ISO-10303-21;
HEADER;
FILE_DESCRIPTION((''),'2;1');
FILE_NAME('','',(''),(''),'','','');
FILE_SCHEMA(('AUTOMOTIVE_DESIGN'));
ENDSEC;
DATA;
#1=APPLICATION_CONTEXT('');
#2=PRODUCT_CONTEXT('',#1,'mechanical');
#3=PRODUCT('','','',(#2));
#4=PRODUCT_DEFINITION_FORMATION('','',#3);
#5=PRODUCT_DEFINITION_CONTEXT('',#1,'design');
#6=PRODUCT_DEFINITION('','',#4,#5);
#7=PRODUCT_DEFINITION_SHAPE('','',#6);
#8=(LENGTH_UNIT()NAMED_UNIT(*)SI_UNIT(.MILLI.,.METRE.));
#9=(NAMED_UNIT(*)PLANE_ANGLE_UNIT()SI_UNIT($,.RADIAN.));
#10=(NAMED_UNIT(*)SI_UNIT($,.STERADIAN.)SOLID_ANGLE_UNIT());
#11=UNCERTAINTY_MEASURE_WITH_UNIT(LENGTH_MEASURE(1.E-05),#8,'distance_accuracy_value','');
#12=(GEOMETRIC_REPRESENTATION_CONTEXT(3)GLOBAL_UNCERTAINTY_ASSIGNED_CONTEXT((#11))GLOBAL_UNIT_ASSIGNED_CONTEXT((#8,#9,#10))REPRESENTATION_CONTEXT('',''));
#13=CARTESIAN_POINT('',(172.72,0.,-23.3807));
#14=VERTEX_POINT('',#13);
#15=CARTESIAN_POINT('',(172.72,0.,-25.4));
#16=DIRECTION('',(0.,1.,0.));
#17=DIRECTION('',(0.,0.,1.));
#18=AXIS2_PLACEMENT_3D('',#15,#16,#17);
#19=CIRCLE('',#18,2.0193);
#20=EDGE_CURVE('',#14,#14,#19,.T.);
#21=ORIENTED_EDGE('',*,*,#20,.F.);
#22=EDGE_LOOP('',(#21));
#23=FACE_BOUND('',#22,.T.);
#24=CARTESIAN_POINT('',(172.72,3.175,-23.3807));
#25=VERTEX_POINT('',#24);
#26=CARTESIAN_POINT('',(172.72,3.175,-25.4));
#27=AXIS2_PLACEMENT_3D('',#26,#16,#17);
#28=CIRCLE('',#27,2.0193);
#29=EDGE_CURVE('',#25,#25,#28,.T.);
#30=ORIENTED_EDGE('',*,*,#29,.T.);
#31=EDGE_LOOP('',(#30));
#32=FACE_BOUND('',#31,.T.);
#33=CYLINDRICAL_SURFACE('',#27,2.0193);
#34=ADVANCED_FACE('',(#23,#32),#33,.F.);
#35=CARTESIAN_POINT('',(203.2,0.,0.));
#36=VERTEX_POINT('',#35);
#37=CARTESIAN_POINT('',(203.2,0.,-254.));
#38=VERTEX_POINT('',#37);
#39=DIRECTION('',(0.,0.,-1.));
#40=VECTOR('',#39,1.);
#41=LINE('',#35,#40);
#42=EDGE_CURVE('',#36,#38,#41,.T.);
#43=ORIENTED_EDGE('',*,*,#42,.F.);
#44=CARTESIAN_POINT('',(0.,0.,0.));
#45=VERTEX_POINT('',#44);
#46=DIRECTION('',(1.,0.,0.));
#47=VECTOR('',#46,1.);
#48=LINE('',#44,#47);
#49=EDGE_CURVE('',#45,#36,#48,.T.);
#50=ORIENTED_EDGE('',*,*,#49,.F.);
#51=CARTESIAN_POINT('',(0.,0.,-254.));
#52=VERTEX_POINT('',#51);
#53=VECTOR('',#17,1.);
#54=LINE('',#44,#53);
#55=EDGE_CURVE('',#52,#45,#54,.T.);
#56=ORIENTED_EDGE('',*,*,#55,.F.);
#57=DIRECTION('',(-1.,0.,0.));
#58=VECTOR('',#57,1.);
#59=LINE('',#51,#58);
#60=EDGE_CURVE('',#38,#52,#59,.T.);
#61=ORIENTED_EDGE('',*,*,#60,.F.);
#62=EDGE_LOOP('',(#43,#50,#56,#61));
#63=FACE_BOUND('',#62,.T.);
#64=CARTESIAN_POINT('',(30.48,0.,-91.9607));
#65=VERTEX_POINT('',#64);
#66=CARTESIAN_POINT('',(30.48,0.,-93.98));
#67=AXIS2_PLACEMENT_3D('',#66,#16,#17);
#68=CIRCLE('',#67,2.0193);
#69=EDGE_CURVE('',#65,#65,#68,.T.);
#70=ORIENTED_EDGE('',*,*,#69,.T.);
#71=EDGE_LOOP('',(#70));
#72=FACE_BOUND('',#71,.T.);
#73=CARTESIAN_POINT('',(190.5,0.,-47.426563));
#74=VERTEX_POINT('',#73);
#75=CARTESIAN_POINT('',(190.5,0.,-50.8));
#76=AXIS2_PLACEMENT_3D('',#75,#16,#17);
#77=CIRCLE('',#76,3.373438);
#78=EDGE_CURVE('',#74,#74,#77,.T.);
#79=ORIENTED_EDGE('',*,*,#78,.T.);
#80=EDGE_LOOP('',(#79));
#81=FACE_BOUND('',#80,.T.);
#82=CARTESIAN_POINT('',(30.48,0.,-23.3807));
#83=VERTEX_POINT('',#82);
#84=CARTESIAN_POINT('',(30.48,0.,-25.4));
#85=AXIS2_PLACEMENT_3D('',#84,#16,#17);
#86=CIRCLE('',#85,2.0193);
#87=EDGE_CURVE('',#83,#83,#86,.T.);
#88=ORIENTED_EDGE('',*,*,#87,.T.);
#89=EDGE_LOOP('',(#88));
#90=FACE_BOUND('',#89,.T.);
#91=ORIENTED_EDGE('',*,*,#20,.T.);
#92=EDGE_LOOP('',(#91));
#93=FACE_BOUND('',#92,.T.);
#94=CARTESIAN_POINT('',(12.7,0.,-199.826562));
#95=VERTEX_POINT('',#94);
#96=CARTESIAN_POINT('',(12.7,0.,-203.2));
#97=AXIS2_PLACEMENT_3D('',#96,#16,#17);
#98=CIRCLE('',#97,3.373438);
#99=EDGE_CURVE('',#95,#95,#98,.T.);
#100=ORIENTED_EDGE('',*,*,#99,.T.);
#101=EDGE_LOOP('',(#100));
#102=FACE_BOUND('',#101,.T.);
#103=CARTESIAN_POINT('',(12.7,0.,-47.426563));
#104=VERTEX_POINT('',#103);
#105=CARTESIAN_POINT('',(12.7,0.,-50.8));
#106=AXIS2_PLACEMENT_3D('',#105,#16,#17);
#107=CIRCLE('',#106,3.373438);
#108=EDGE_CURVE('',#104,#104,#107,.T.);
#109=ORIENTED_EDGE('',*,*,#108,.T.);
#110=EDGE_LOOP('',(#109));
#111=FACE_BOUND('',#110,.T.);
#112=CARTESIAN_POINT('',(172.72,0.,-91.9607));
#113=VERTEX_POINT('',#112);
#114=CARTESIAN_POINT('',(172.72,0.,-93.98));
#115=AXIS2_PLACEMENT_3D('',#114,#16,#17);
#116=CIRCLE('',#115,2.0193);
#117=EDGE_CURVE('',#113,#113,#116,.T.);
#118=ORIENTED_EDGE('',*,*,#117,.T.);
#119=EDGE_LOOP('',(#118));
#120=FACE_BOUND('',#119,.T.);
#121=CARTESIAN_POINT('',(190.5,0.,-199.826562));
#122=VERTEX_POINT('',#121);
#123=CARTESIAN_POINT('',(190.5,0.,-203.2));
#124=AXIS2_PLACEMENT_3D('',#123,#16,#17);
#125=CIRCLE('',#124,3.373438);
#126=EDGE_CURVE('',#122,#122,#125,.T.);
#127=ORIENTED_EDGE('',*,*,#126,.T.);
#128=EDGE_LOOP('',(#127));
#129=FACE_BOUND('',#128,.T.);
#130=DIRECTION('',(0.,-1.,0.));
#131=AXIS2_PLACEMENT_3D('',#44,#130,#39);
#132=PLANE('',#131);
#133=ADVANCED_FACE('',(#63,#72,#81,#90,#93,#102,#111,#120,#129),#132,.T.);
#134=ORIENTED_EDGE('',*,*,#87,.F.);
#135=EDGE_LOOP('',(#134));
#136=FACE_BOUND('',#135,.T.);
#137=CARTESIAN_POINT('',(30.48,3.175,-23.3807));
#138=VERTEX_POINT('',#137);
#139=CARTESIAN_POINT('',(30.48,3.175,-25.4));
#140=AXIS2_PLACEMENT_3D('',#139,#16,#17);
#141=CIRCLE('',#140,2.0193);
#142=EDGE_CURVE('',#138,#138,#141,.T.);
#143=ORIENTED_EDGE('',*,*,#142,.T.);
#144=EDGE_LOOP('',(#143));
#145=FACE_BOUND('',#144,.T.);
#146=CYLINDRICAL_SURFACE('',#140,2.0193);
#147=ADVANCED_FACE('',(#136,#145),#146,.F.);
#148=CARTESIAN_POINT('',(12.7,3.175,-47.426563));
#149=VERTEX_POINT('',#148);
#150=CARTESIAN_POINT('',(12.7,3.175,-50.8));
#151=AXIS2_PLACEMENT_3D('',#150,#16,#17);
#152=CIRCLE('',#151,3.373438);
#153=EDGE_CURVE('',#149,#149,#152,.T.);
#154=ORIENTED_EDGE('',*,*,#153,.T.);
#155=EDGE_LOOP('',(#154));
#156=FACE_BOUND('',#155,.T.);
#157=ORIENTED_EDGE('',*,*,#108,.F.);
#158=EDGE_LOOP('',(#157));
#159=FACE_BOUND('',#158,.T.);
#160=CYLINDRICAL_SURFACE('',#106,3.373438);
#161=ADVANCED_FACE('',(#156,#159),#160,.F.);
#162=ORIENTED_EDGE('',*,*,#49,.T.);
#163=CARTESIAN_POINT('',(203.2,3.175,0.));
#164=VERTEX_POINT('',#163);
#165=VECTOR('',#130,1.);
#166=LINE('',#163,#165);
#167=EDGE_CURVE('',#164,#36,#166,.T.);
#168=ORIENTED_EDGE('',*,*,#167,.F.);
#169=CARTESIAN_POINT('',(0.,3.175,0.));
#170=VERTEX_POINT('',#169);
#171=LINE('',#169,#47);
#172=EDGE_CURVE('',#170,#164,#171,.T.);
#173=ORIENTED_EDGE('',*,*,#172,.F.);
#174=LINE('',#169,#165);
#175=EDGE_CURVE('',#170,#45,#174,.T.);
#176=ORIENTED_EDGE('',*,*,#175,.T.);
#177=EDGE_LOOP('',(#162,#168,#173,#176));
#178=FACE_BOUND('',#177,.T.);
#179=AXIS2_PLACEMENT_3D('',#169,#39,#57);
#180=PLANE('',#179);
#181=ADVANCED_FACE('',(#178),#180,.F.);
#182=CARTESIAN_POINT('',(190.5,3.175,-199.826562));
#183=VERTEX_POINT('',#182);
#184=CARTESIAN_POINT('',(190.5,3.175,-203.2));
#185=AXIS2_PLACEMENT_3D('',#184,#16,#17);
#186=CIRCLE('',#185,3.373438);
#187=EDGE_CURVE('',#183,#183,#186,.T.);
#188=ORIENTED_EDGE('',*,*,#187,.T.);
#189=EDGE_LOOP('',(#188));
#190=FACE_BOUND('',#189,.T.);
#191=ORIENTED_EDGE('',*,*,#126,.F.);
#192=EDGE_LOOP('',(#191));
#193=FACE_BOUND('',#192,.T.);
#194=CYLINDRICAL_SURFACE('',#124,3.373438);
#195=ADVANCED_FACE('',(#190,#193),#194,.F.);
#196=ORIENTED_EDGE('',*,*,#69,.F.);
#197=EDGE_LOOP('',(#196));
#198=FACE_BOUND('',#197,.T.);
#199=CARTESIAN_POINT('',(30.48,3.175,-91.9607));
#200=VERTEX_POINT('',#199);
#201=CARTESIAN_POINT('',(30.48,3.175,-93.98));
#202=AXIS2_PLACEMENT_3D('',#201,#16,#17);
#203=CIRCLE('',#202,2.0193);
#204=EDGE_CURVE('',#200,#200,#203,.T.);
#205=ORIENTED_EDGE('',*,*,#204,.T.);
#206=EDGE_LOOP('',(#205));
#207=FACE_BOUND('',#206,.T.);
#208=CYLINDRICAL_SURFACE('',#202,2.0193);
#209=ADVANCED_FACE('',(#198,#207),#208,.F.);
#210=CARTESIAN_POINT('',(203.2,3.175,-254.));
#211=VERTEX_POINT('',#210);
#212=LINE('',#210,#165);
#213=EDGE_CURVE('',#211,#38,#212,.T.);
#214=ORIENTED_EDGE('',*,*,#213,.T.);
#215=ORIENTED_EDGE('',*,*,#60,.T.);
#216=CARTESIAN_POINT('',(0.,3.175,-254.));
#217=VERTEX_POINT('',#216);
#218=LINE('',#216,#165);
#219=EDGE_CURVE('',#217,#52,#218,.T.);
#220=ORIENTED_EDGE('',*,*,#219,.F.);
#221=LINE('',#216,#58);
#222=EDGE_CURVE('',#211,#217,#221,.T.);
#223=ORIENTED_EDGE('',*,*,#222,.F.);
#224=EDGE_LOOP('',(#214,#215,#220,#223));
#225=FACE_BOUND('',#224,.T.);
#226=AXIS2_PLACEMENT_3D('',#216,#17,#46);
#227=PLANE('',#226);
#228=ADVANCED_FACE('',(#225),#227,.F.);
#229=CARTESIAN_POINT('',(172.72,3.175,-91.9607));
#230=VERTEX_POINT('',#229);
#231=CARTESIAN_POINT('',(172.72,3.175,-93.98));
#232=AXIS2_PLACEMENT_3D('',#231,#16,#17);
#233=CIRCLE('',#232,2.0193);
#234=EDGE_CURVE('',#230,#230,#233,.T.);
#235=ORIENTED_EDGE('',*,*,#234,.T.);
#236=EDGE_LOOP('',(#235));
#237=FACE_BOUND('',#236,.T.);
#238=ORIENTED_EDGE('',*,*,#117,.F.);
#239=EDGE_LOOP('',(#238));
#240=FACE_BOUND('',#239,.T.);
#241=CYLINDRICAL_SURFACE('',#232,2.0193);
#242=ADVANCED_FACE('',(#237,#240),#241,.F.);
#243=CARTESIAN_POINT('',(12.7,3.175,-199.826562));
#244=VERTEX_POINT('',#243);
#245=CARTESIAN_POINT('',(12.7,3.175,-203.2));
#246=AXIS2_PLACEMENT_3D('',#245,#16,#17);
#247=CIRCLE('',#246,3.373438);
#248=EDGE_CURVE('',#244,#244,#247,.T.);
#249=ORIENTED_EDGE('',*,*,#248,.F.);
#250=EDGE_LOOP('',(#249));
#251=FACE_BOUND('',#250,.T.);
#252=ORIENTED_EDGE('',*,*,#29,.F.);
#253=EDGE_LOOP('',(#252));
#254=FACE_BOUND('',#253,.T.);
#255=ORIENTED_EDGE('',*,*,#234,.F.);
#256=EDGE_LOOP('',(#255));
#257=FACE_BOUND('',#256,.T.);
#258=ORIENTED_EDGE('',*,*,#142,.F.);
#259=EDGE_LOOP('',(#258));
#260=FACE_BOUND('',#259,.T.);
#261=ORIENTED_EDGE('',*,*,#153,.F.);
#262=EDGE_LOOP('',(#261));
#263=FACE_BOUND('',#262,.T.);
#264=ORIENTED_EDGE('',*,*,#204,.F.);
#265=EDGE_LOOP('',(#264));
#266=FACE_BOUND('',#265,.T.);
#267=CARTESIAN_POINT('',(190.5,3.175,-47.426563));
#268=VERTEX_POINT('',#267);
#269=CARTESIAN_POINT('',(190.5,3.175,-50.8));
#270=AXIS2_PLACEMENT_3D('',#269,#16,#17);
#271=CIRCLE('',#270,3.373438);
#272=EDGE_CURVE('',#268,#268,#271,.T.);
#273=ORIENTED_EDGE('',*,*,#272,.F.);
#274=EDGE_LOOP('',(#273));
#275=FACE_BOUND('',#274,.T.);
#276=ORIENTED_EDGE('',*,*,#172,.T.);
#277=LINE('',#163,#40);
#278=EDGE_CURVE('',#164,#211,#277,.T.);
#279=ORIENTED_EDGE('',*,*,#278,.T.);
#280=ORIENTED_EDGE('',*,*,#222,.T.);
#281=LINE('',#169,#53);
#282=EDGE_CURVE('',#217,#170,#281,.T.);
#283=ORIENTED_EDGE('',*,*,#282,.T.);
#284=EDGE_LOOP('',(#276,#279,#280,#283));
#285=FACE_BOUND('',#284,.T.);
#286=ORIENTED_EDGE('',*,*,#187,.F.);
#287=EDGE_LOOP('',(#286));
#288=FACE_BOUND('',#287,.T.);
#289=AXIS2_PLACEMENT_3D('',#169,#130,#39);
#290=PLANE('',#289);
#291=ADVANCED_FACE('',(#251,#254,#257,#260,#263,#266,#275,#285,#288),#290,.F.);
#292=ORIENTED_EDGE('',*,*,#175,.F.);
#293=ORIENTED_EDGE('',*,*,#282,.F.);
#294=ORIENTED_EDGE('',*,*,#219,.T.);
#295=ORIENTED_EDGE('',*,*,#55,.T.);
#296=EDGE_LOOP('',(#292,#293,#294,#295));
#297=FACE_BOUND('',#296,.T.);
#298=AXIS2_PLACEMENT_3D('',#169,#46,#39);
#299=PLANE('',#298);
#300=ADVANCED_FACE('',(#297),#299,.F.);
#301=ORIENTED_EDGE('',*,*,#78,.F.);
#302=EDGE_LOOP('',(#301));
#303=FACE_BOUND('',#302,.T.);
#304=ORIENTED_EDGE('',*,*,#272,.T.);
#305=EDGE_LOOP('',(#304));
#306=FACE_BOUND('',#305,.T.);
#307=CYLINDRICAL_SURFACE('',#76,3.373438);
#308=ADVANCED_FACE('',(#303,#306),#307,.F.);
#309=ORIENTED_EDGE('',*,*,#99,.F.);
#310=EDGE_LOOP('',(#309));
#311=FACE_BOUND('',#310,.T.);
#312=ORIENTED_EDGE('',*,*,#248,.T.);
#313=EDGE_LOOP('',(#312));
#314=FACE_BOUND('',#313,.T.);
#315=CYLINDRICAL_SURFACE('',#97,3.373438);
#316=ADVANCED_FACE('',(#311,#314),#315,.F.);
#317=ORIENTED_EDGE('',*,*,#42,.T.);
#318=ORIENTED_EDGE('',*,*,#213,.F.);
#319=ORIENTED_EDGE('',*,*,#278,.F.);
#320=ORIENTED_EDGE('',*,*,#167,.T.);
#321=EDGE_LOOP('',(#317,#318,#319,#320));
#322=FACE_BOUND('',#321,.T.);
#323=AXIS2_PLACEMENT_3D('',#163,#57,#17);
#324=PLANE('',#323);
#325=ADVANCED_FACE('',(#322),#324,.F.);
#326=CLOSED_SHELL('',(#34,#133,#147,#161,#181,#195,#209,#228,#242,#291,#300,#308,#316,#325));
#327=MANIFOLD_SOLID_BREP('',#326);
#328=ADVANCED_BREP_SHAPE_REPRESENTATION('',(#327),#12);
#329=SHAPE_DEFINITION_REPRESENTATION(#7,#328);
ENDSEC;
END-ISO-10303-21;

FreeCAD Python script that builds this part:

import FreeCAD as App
import Part
import Sketcher
Q = App.Units.Quantity


def add_polygon(sketch, points):
    """Adds a closed chain of lines whose ends are joined by coincident constraints."""
    first, n = sketch.GeometryCount, len(points)
    for a, b in zip(points, points[1:] + points[:1]):
        sketch.addGeometry(Part.LineSegment(App.Vector(*a, 0), App.Vector(*b, 0)), False)
    for i in range(n):
        sketch.addConstraint(Sketcher.Constraint("Coincident", first + i, 2, first + (i + 1) % n, 1))

doc = App.newDocument("Part")
body = doc.addObject("PartDesign::Body", "Body")

sketch1 = body.newObject("Sketcher::SketchObject", "Sketch")
sketch1.AttachmentSupport = (doc.getObject("XZ_Plane"), [""])
sketch1.MapMode = "FlatFace"
add_polygon(sketch1, [(0, -254), (0, 0), (203, 0), (203, -254)])
sketch1.addConstraint(Sketcher.Constraint("Vertical", 0))
sketch1.addConstraint(Sketcher.Constraint("Horizontal", 1))
sketch1.addConstraint(Sketcher.Constraint("Vertical", 2))
sketch1.addConstraint(Sketcher.Constraint("Horizontal", 3))
sketch1.addConstraint(Sketcher.Constraint("Coincident", 0, 2, -1, 1))
sketch1.addConstraint(Sketcher.Constraint("DistanceX", 1, 1, 1, 2, Q("8 in")))
sketch1.addConstraint(Sketcher.Constraint("DistanceY", 0, 1, 0, 2, Q("10 in")))
pad1 = body.newObject("PartDesign::Pad", "Pad")
pad1.Profile = sketch1
pad1.Length = Q("0.125 in")
pad1.Reversed = True

sketch2 = body.newObject("Sketcher::SketchObject", "Sketch001")
sketch2.AttachmentSupport = (doc.getObject("XZ_Plane"), [""])
sketch2.MapMode = "FlatFace"
sketch2.AttachmentOffset = App.Placement(App.Vector(0, 0, -0.125 * 25.4), App.Rotation())
sketch2.addGeometry(Part.Circle(App.Vector(190.5, -203.2, 0), App.Vector(0, 0, 1), 3.4), False)
sketch2.addGeometry(Part.Circle(App.Vector(12.7, -203.2, 0), App.Vector(0, 0, 1), 3.4), False)
sketch2.addGeometry(Part.Circle(App.Vector(12.7, -50.8, 0), App.Vector(0, 0, 1), 3.4), False)
sketch2.addGeometry(Part.Circle(App.Vector(190.5, -50.8, 0), App.Vector(0, 0, 1), 3.4), False)
sketch2.addConstraint(Sketcher.Constraint("Equal", 0, 1))
sketch2.addConstraint(Sketcher.Constraint("Equal", 1, 2))
sketch2.addConstraint(Sketcher.Constraint("Equal", 2, 3))
sketch2.addConstraint(Sketcher.Constraint("Horizontal", 0, 3, 1, 3))
sketch2.addConstraint(Sketcher.Constraint("Horizontal", 2, 3, 3, 3))
sketch2.addConstraint(Sketcher.Constraint("Vertical", 1, 3, 2, 3))
sketch2.addConstraint(Sketcher.Constraint("Vertical", 0, 3, 3, 3))
sketch2.addConstraint(Sketcher.Constraint("Diameter", 0, Q("0.265625 in")))
sketch2.addConstraint(Sketcher.Constraint("DistanceY", 0, 3, -1, 1, Q("8 in")))
sketch2.addConstraint(Sketcher.Constraint("DistanceY", 2, 3, -1, 1, Q("2 in")))
sketch2.addConstraint(Sketcher.Constraint("DistanceX", 1, 3, 0, 3, Q("7 in")))
sketch2.addConstraint(Sketcher.Constraint("DistanceX", -1, 1, 0, 3, Q("7.5 in")))
pocket1 = body.newObject("PartDesign::Pocket", "Pocket")
pocket1.Profile = sketch2
pocket1.Type = "ThroughAll"
pocket1.Reversed = True

sketch3 = body.newObject("Sketcher::SketchObject", "Sketch002")
sketch3.AttachmentSupport = (doc.getObject("XZ_Plane"), [""])
sketch3.MapMode = "FlatFace"
sketch3.AttachmentOffset = App.Placement(App.Vector(0, 0, -0.125 * 25.4), App.Rotation())
sketch3.addGeometry(Part.Circle(App.Vector(172.7, -25.4, 0), App.Vector(0, 0, 1), 2), False)
sketch3.addGeometry(Part.Circle(App.Vector(172.7, -94, 0), App.Vector(0, 0, 1), 2), False)
sketch3.addGeometry(Part.Circle(App.Vector(30.5, -25.4, 0), App.Vector(0, 0, 1), 2), False)
sketch3.addGeometry(Part.Circle(App.Vector(30.5, -94, 0), App.Vector(0, 0, 1), 2), False)
sketch3.addConstraint(Sketcher.Constraint("Equal", 0, 1))
sketch3.addConstraint(Sketcher.Constraint("Equal", 1, 2))
sketch3.addConstraint(Sketcher.Constraint("Equal", 2, 3))
sketch3.addConstraint(Sketcher.Constraint("Horizontal", 0, 3, 2, 3))
sketch3.addConstraint(Sketcher.Constraint("Horizontal", 1, 3, 3, 3))
sketch3.addConstraint(Sketcher.Constraint("Vertical", 0, 3, 1, 3))
sketch3.addConstraint(Sketcher.Constraint("Vertical", 2, 3, 3, 3))
sketch3.addConstraint(Sketcher.Constraint("Diameter", 0, Q("0.159 in")))
sketch3.addConstraint(Sketcher.Constraint("DistanceY", 0, 3, -1, 1, Q("1 in")))
sketch3.addConstraint(Sketcher.Constraint("DistanceX", -1, 1, 0, 3, Q("6.8 in")))
sketch3.addConstraint(Sketcher.Constraint("DistanceY", 1, 3, -1, 1, Q("3.7 in")))
sketch3.addConstraint(Sketcher.Constraint("DistanceX", -1, 1, 2, 3, Q("1.2 in")))
doc.recompute()
hole = body.newObject("PartDesign::Hole", "Hole")
hole.Profile = sketch3
hole.ThreadType = "None"
hole.Diameter = Q("0.159 in")
hole.DepthType = "ThroughAll"
hole.Reversed = True

doc.recompute()
